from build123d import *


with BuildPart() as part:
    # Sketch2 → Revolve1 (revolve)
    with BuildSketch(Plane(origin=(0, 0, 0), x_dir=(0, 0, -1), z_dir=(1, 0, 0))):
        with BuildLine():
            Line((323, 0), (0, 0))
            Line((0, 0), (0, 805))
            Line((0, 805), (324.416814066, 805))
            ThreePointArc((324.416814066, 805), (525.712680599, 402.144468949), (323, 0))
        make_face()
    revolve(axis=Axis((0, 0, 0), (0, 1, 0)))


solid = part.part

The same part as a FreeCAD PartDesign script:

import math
import FreeCAD as App
import Part
import Sketcher
from FreeCAD import Vector

doc = App.newDocument("Part")
body = doc.addObject("PartDesign::Body", "Body")

# Sketch on YZ plane
sketch1 = body.newObject("Sketcher::SketchObject", "Sketch")
sketch1.AttachmentSupport = (doc.getObject("YZ_Plane"), [""])
sketch1.MapMode = "FlatFace"
sketch1.addGeometry([
    Part.LineSegment(Vector(0, 0, 0), Vector(0, -323, 0)),
    Part.ArcOfCircle(Part.Circle(Vector(403, -24, 0), Vector(0, 0, 1), 502), math.radians(-143), math.radians(-37)),
    Part.LineSegment(Vector(805, -324, 0), Vector(805, 0, 0)),
    Part.LineSegment(Vector(805, 0, 0), Vector(0, 0, 0)),
], False)
sketch1.addConstraint([
    Sketcher.Constraint("Coincident", 0, 2, 1, 1),
    Sketcher.Constraint("Coincident", 1, 2, 2, 1),
    Sketcher.Constraint("Coincident", 2, 2, 3, 1),
    Sketcher.Constraint("Coincident", 3, 2, 0, 1),
    Sketcher.Constraint("Vertical", 0),
    Sketcher.Constraint("Vertical", 2),
    Sketcher.Constraint("Horizontal", 3),
    Sketcher.Constraint("Coincident", 3, 2, -1, 1),
    Sketcher.Constraint("Radius", 1, 502.0),
    Sketcher.Constraint("DistanceX", 3, 2, 3, 1, 805.0),
    Sketcher.Constraint("DistanceY", 0, 2, 0, 1, 323.0),
    Sketcher.Constraint("DistanceY", 2, 1, 2, 2, 324.416814),
])
revolution = body.newObject("PartDesign::Revolution", "Revolution")
revolution.Profile = sketch1
revolution.ReferenceAxis = (sketch1, ["H_Axis"])
revolution.Angle = 360

doc.recompute()
